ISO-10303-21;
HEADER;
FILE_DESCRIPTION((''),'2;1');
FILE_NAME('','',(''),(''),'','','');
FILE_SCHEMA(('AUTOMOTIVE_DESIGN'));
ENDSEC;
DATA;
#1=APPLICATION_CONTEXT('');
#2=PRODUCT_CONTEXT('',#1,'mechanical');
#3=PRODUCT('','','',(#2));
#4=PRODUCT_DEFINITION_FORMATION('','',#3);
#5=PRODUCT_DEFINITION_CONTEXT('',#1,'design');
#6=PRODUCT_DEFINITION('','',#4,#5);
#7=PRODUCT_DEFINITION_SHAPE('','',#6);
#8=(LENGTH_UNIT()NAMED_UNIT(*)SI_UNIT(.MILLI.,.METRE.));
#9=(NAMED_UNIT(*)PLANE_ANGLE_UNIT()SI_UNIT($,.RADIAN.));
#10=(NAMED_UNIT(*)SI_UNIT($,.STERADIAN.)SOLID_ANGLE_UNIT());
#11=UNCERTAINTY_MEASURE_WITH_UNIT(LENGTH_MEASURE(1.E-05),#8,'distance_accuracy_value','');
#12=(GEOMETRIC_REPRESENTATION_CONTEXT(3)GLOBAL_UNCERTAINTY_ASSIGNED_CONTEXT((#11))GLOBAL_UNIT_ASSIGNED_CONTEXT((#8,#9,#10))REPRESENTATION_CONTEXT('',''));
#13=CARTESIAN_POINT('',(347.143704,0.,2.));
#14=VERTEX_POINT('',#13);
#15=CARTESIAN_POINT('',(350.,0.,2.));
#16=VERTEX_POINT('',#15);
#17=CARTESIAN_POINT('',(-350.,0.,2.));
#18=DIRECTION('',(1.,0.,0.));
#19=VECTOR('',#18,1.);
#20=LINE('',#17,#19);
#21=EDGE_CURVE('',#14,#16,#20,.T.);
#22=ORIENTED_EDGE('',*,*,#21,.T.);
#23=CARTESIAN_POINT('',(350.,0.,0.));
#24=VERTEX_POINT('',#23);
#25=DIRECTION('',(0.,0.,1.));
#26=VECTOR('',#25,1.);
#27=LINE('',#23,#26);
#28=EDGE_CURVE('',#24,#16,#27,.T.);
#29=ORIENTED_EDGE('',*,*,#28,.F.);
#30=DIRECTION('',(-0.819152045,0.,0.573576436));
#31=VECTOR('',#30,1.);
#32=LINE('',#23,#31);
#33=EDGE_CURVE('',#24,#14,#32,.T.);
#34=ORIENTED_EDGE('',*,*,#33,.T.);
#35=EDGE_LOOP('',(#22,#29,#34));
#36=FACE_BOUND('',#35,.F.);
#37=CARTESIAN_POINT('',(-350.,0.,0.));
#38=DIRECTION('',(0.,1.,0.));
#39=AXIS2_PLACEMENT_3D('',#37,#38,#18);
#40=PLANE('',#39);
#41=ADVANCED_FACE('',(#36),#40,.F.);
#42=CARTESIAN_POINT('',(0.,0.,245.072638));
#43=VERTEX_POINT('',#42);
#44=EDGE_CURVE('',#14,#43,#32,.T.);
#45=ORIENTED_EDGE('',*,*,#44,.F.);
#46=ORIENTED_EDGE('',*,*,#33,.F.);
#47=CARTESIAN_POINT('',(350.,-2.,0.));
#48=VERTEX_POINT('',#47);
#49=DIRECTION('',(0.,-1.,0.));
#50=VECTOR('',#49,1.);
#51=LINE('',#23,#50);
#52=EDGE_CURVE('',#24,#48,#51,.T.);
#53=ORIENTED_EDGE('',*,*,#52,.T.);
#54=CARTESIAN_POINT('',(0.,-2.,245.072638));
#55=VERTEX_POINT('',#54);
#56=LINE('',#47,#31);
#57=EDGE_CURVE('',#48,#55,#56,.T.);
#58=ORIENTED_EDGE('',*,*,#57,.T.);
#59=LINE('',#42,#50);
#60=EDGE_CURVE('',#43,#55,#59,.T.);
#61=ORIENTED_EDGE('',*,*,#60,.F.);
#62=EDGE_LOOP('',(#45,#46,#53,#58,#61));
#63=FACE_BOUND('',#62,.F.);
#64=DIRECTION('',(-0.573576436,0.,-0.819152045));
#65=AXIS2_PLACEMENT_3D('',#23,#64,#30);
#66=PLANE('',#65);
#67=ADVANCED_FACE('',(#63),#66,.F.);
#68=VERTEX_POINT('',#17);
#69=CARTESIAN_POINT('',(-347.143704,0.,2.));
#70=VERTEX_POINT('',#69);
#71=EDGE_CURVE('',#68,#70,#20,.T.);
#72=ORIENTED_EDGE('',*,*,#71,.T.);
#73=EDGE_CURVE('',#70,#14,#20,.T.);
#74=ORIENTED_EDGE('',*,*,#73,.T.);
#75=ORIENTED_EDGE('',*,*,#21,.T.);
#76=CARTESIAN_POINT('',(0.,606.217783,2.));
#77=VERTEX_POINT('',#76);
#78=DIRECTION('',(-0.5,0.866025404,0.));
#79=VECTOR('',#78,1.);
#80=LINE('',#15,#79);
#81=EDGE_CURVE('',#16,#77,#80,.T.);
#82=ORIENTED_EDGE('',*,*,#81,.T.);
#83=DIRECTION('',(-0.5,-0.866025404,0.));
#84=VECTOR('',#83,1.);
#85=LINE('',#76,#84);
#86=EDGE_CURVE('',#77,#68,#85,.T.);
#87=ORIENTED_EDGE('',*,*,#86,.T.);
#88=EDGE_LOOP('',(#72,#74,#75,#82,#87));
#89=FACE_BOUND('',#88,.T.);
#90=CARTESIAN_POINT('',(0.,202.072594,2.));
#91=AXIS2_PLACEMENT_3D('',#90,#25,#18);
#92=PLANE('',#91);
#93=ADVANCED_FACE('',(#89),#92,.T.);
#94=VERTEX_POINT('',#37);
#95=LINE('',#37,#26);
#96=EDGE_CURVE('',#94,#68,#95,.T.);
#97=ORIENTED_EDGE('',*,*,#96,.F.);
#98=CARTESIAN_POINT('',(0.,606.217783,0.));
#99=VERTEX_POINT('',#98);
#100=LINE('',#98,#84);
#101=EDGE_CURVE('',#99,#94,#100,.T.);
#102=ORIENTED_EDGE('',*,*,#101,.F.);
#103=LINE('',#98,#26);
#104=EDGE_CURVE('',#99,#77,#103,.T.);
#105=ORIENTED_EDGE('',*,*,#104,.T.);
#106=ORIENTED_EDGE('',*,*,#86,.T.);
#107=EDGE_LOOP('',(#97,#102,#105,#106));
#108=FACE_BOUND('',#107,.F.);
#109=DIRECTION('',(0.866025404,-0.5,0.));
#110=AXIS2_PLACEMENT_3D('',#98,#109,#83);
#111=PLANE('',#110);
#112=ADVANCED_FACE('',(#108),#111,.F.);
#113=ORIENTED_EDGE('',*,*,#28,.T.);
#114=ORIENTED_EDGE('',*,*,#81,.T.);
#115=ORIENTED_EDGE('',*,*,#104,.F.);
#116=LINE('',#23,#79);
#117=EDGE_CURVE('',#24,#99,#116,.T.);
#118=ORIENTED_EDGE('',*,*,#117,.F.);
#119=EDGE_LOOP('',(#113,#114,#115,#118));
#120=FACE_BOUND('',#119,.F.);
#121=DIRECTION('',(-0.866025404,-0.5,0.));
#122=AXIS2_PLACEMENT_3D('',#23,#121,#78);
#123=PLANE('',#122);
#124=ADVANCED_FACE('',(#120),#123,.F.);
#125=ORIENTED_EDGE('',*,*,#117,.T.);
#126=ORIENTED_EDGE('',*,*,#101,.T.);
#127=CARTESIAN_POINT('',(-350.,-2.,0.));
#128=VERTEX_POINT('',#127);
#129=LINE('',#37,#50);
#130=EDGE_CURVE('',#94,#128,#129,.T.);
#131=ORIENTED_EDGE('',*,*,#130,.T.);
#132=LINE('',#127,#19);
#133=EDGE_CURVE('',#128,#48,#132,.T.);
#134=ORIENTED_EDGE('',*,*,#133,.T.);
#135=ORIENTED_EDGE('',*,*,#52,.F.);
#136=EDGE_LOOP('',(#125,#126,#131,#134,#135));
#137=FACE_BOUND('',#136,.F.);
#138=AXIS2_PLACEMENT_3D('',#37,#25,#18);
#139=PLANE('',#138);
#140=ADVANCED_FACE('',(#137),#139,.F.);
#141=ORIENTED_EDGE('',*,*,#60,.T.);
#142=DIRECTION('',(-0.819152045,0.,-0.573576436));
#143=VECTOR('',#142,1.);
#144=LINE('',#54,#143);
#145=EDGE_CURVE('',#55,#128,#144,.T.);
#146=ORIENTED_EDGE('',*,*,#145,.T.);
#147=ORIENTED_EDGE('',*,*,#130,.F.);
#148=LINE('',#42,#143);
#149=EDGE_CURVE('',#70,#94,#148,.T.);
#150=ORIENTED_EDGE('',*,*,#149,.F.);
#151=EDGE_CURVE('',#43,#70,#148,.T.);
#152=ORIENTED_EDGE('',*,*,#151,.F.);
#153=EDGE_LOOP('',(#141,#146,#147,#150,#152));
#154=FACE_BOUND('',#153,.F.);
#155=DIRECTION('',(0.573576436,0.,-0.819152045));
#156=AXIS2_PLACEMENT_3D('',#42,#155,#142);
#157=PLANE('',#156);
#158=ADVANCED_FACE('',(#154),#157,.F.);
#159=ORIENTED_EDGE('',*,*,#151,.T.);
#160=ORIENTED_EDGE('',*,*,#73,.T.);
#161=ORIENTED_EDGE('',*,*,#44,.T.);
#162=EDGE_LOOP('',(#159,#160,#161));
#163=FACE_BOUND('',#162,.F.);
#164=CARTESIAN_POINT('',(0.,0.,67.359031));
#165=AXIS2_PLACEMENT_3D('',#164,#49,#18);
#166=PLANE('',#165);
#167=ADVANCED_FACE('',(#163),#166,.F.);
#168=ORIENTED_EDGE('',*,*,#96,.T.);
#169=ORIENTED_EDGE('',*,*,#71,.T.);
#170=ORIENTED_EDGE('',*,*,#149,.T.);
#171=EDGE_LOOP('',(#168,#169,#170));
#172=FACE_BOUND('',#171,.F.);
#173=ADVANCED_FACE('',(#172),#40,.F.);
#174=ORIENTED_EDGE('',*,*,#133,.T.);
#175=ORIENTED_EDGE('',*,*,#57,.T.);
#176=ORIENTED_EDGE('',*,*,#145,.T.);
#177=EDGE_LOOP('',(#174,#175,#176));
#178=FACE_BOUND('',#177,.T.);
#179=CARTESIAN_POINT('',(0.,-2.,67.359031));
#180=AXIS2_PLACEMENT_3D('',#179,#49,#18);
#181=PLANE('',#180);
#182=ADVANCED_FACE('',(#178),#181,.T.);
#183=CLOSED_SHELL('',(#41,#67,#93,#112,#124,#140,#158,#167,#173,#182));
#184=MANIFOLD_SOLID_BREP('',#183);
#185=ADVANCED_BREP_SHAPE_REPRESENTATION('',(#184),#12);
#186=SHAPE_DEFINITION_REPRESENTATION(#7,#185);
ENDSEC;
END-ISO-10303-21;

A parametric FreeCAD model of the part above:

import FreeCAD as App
import Part
import Sketcher

V = App.Vector
Q = App.Units.Quantity


def add_polygon(sketch, points):
    """Adds a closed chain of lines whose ends are joined by coincident constraints."""
    first, n = sketch.GeometryCount, len(points)
    for a, b in zip(points, points[1:] + points[:1]):
        sketch.addGeometry(Part.LineSegment(App.Vector(*a, 0), App.Vector(*b, 0)), False)
    for i in range(n):
        sketch.addConstraint(Sketcher.Constraint("Coincident", first + i, 2, first + (i + 1) % n, 1))

doc = App.newDocument("Part")
body = doc.addObject("PartDesign::Body", "Body")

# Sketch on XZ plane
sketch1 = body.newObject("Sketcher::SketchObject", "Sketch")
sketch1.AttachmentSupport = (doc.getObject("XZ_Plane"), [""])
sketch1.MapMode = "FlatFace"
add_polygon(sketch1, [(-350, 0), (350, 0), (0, 245)])  # lines 0-2
sketch1.addConstraint(Sketcher.Constraint("Horizontal", 0))
sketch1.addConstraint(Sketcher.Constraint("Symmetric", 0, 2, 2, 2, -1, 1))
sketch1.addConstraint(Sketcher.Constraint("PointOnObject", 1, 2, -2))
sketch1.addConstraint(Sketcher.Constraint("DistanceX", 0, 1, 0, 2, Q("700 mm")))
sketch1.addConstraint(Sketcher.Constraint("Angle", 1, Q("145 deg")))
pad1 = body.newObject("PartDesign::Pad", "Pad")
pad1.Profile = sketch1
pad1.Length = 2

# Sketch on XY plane
sketch2 = body.newObject("Sketcher::SketchObject", "Sketch001")
sketch2.AttachmentSupport = (doc.getObject("XY_Plane"), [""])
sketch2.MapMode = "FlatFace"
add_polygon(sketch2, [(-350, 0), (350, 0), (0, 606)])  # lines 0-2
sketch2.addConstraint(Sketcher.Constraint("Horizontal", 0))
sketch2.addConstraint(Sketcher.Constraint("Symmetric", 0, 2, 2, 2, -1, 1))
sketch2.addConstraint(Sketcher.Constraint("PointOnObject", 1, 2, -2))
sketch2.addConstraint(Sketcher.Constraint("DistanceX", 0, 1, 0, 2, Q("700 mm")))
sketch2.addConstraint(Sketcher.Constraint("Angle", 1, Q("120 deg")))
pad2 = body.newObject("PartDesign::Pad", "Pad001")
pad2.Profile = sketch2
pad2.Length = 2

doc.recompute()
